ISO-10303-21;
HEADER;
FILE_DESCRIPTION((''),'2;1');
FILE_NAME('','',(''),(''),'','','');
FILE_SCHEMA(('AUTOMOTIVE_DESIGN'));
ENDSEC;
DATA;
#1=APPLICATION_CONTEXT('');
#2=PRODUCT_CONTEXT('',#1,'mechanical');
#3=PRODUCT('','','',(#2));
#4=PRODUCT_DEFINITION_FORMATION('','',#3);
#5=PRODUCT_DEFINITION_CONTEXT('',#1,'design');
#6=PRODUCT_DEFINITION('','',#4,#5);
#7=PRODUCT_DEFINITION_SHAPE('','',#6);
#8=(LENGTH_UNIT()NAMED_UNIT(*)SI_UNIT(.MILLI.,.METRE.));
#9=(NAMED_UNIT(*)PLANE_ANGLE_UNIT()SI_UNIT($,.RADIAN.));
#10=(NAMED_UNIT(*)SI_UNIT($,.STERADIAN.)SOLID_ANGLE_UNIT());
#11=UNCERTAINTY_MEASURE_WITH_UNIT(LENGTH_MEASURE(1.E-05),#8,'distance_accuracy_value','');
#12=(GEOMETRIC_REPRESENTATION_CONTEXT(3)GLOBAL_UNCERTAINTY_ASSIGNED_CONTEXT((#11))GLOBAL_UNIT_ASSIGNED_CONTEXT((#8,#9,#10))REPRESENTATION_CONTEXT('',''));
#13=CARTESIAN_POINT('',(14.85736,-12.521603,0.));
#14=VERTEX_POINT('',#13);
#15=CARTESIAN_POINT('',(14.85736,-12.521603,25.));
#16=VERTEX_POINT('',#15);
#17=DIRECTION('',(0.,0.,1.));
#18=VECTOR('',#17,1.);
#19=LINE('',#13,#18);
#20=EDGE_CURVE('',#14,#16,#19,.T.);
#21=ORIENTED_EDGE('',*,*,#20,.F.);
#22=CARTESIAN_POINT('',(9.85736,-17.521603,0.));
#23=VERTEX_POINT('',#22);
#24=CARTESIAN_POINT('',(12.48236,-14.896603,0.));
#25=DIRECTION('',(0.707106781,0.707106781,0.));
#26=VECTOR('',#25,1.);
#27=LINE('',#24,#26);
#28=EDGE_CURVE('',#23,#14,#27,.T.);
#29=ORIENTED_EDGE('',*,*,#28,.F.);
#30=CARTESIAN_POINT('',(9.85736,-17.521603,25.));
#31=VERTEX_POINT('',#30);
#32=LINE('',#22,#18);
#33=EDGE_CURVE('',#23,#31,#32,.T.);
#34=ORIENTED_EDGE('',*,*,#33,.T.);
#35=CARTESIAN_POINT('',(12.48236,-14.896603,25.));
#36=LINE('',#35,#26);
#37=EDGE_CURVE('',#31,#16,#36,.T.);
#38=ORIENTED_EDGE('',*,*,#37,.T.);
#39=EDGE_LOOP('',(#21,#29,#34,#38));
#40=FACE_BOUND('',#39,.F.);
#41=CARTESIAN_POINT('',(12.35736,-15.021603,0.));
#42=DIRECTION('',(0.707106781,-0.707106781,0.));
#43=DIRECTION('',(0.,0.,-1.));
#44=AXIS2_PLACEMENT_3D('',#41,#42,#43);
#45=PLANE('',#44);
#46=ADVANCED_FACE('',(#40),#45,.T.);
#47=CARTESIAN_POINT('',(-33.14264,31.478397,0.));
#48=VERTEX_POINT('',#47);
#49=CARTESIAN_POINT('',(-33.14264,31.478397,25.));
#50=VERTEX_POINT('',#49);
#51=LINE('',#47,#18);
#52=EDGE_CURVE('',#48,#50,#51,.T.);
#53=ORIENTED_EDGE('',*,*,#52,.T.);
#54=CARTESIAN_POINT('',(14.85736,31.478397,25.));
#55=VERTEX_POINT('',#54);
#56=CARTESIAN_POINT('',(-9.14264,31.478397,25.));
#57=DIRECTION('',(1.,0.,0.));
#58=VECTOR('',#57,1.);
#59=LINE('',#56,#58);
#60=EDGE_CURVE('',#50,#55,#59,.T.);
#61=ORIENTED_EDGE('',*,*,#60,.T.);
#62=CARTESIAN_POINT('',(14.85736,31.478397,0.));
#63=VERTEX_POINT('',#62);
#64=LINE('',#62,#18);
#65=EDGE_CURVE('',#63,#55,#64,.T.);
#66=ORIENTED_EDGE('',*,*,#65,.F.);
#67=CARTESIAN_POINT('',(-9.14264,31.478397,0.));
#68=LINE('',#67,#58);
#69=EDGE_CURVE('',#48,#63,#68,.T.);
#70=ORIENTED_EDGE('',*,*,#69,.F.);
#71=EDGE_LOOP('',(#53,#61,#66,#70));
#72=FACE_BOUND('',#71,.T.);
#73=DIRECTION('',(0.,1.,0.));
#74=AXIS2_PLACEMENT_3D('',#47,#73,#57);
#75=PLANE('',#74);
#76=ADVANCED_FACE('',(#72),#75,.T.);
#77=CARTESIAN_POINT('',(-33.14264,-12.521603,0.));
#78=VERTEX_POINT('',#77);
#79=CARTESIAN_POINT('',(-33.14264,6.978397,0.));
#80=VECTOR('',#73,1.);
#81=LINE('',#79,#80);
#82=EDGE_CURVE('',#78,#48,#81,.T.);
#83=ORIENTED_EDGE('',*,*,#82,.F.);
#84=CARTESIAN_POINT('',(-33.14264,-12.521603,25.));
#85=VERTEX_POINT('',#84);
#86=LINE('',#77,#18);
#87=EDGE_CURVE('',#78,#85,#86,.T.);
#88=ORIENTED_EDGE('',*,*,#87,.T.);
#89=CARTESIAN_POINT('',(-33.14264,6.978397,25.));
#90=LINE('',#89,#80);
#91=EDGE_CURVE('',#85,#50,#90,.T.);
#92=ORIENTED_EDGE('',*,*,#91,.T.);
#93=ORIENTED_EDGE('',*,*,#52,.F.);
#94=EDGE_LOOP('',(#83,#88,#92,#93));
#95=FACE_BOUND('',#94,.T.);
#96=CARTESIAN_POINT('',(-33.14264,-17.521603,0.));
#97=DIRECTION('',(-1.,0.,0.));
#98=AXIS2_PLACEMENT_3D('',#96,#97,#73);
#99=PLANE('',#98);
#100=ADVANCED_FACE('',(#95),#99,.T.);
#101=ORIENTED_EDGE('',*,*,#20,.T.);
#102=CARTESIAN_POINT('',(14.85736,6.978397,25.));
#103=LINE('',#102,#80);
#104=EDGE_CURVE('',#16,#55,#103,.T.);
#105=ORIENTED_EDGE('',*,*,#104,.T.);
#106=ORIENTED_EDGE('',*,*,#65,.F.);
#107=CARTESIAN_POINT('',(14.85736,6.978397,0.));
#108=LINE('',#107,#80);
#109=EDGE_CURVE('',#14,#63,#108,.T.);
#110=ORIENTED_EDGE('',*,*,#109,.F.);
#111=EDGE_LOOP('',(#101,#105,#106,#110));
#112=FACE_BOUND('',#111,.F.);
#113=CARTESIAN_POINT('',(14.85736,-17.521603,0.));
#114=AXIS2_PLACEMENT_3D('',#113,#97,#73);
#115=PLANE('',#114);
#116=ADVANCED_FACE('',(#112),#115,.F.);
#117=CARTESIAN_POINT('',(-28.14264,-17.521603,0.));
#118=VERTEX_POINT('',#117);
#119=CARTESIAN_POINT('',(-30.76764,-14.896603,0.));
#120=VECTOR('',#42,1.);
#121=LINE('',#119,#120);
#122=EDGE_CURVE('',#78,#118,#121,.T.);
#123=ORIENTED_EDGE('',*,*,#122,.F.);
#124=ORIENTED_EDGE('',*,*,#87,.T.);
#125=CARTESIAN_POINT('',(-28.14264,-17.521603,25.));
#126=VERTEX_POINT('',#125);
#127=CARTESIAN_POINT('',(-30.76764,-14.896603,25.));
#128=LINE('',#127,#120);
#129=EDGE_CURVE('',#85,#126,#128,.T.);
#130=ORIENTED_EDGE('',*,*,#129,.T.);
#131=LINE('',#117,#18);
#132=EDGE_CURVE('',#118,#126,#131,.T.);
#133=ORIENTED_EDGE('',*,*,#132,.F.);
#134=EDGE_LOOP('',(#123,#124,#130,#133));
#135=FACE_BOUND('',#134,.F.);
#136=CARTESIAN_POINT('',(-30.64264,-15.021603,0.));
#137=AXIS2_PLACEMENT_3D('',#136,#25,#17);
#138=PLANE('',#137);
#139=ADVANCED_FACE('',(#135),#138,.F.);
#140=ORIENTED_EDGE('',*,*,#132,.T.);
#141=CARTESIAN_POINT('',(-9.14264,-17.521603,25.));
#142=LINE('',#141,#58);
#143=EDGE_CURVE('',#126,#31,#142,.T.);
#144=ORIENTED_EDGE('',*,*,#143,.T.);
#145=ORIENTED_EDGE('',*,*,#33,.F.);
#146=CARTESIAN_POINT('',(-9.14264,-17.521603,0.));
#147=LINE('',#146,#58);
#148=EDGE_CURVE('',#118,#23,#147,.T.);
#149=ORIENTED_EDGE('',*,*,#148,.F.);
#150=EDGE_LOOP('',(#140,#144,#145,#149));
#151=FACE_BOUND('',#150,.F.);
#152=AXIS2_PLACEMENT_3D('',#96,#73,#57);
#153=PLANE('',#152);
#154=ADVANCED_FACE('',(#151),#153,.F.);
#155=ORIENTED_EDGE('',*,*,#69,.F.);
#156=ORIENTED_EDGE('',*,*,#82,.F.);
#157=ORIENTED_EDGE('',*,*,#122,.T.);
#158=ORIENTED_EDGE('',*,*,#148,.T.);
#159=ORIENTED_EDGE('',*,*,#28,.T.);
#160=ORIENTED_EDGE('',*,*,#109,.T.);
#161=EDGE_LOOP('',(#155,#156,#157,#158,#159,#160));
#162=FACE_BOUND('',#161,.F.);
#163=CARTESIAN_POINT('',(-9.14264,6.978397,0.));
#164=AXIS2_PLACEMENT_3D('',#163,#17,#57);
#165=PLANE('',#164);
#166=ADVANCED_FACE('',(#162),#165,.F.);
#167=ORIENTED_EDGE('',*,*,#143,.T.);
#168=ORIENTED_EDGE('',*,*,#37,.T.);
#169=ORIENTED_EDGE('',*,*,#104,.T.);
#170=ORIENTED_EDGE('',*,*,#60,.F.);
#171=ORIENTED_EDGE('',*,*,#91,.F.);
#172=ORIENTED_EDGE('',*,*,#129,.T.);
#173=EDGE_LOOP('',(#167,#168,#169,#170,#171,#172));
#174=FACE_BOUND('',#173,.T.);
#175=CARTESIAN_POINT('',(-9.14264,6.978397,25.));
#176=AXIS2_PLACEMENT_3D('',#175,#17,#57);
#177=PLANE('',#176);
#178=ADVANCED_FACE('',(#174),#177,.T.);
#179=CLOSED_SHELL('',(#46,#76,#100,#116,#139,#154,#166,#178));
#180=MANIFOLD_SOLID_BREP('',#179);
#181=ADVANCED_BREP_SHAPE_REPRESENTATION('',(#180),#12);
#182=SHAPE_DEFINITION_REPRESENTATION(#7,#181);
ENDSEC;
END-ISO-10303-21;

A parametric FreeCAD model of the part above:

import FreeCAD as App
import Part
import Sketcher
from FreeCAD import Vector
Q = App.Units.Quantity


def edges_at(feature, points):
    """Names of the edges that pass closest to the given points."""
    edges = feature.Shape.Edges
    near = lambda p: min(range(len(edges)), key=lambda i: edges[i].distToShape(Part.Vertex(*p))[0])
    return sorted({f"Edge{near(p) + 1}" for p in points})


def add_polygon(sketch, points):
    """Adds a closed chain of lines whose ends are joined by coincident constraints."""
    first, n = sketch.GeometryCount, len(points)
    for a, b in zip(points, points[1:] + points[:1]):
        sketch.addGeometry(Part.LineSegment(App.Vector(*a, 0), App.Vector(*b, 0)), False)
    for i in range(n):
        sketch.addConstraint(Sketcher.Constraint("Coincident", first + i, 2, first + (i + 1) % n, 1))

doc = App.newDocument("Part")
body = doc.addObject("PartDesign::Body", "Body")

sketch1 = body.newObject("Sketcher::SketchObject", "Sketch")
sketch1.AttachmentSupport = (doc.getObject("XY_Plane"), [""])
sketch1.MapMode = "FlatFace"
add_polygon(sketch1, [(-33.14264, 31.478397), (-33.14264, -17.521603), (14.85736, -17.521603), (14.85736, 31.478397)])
sketch1.addConstraint([
    Sketcher.Constraint("Vertical", 0),
    Sketcher.Constraint("Horizontal", 1),
    Sketcher.Constraint("Vertical", 2),
    Sketcher.Constraint("Horizontal", 3),
    Sketcher.Constraint("DistanceX", 1, 1, 1, 2, Q("48 mm")),
    Sketcher.Constraint("DistanceY", 0, 2, 0, 1, Q("49 mm")),
    Sketcher.Constraint("DistanceX", 0, 2, -1, 1, Q("33.14264 mm")),
    Sketcher.Constraint("DistanceY", 0, 2, -1, 1, Q("17.521603 mm")),
])
pad1 = body.newObject("PartDesign::Pad", "Pad")
pad1.Profile = sketch1
pad1.Length = 25
doc.recompute()

chamfer = body.newObject("PartDesign::Chamfer", "Chamfer")
chamfer.Base = (pad1, edges_at(pad1, [(-33.143, -17.522, 12.5), (14.857, -17.522, 12.5)]))
chamfer.Size = 5

doc.recompute()
